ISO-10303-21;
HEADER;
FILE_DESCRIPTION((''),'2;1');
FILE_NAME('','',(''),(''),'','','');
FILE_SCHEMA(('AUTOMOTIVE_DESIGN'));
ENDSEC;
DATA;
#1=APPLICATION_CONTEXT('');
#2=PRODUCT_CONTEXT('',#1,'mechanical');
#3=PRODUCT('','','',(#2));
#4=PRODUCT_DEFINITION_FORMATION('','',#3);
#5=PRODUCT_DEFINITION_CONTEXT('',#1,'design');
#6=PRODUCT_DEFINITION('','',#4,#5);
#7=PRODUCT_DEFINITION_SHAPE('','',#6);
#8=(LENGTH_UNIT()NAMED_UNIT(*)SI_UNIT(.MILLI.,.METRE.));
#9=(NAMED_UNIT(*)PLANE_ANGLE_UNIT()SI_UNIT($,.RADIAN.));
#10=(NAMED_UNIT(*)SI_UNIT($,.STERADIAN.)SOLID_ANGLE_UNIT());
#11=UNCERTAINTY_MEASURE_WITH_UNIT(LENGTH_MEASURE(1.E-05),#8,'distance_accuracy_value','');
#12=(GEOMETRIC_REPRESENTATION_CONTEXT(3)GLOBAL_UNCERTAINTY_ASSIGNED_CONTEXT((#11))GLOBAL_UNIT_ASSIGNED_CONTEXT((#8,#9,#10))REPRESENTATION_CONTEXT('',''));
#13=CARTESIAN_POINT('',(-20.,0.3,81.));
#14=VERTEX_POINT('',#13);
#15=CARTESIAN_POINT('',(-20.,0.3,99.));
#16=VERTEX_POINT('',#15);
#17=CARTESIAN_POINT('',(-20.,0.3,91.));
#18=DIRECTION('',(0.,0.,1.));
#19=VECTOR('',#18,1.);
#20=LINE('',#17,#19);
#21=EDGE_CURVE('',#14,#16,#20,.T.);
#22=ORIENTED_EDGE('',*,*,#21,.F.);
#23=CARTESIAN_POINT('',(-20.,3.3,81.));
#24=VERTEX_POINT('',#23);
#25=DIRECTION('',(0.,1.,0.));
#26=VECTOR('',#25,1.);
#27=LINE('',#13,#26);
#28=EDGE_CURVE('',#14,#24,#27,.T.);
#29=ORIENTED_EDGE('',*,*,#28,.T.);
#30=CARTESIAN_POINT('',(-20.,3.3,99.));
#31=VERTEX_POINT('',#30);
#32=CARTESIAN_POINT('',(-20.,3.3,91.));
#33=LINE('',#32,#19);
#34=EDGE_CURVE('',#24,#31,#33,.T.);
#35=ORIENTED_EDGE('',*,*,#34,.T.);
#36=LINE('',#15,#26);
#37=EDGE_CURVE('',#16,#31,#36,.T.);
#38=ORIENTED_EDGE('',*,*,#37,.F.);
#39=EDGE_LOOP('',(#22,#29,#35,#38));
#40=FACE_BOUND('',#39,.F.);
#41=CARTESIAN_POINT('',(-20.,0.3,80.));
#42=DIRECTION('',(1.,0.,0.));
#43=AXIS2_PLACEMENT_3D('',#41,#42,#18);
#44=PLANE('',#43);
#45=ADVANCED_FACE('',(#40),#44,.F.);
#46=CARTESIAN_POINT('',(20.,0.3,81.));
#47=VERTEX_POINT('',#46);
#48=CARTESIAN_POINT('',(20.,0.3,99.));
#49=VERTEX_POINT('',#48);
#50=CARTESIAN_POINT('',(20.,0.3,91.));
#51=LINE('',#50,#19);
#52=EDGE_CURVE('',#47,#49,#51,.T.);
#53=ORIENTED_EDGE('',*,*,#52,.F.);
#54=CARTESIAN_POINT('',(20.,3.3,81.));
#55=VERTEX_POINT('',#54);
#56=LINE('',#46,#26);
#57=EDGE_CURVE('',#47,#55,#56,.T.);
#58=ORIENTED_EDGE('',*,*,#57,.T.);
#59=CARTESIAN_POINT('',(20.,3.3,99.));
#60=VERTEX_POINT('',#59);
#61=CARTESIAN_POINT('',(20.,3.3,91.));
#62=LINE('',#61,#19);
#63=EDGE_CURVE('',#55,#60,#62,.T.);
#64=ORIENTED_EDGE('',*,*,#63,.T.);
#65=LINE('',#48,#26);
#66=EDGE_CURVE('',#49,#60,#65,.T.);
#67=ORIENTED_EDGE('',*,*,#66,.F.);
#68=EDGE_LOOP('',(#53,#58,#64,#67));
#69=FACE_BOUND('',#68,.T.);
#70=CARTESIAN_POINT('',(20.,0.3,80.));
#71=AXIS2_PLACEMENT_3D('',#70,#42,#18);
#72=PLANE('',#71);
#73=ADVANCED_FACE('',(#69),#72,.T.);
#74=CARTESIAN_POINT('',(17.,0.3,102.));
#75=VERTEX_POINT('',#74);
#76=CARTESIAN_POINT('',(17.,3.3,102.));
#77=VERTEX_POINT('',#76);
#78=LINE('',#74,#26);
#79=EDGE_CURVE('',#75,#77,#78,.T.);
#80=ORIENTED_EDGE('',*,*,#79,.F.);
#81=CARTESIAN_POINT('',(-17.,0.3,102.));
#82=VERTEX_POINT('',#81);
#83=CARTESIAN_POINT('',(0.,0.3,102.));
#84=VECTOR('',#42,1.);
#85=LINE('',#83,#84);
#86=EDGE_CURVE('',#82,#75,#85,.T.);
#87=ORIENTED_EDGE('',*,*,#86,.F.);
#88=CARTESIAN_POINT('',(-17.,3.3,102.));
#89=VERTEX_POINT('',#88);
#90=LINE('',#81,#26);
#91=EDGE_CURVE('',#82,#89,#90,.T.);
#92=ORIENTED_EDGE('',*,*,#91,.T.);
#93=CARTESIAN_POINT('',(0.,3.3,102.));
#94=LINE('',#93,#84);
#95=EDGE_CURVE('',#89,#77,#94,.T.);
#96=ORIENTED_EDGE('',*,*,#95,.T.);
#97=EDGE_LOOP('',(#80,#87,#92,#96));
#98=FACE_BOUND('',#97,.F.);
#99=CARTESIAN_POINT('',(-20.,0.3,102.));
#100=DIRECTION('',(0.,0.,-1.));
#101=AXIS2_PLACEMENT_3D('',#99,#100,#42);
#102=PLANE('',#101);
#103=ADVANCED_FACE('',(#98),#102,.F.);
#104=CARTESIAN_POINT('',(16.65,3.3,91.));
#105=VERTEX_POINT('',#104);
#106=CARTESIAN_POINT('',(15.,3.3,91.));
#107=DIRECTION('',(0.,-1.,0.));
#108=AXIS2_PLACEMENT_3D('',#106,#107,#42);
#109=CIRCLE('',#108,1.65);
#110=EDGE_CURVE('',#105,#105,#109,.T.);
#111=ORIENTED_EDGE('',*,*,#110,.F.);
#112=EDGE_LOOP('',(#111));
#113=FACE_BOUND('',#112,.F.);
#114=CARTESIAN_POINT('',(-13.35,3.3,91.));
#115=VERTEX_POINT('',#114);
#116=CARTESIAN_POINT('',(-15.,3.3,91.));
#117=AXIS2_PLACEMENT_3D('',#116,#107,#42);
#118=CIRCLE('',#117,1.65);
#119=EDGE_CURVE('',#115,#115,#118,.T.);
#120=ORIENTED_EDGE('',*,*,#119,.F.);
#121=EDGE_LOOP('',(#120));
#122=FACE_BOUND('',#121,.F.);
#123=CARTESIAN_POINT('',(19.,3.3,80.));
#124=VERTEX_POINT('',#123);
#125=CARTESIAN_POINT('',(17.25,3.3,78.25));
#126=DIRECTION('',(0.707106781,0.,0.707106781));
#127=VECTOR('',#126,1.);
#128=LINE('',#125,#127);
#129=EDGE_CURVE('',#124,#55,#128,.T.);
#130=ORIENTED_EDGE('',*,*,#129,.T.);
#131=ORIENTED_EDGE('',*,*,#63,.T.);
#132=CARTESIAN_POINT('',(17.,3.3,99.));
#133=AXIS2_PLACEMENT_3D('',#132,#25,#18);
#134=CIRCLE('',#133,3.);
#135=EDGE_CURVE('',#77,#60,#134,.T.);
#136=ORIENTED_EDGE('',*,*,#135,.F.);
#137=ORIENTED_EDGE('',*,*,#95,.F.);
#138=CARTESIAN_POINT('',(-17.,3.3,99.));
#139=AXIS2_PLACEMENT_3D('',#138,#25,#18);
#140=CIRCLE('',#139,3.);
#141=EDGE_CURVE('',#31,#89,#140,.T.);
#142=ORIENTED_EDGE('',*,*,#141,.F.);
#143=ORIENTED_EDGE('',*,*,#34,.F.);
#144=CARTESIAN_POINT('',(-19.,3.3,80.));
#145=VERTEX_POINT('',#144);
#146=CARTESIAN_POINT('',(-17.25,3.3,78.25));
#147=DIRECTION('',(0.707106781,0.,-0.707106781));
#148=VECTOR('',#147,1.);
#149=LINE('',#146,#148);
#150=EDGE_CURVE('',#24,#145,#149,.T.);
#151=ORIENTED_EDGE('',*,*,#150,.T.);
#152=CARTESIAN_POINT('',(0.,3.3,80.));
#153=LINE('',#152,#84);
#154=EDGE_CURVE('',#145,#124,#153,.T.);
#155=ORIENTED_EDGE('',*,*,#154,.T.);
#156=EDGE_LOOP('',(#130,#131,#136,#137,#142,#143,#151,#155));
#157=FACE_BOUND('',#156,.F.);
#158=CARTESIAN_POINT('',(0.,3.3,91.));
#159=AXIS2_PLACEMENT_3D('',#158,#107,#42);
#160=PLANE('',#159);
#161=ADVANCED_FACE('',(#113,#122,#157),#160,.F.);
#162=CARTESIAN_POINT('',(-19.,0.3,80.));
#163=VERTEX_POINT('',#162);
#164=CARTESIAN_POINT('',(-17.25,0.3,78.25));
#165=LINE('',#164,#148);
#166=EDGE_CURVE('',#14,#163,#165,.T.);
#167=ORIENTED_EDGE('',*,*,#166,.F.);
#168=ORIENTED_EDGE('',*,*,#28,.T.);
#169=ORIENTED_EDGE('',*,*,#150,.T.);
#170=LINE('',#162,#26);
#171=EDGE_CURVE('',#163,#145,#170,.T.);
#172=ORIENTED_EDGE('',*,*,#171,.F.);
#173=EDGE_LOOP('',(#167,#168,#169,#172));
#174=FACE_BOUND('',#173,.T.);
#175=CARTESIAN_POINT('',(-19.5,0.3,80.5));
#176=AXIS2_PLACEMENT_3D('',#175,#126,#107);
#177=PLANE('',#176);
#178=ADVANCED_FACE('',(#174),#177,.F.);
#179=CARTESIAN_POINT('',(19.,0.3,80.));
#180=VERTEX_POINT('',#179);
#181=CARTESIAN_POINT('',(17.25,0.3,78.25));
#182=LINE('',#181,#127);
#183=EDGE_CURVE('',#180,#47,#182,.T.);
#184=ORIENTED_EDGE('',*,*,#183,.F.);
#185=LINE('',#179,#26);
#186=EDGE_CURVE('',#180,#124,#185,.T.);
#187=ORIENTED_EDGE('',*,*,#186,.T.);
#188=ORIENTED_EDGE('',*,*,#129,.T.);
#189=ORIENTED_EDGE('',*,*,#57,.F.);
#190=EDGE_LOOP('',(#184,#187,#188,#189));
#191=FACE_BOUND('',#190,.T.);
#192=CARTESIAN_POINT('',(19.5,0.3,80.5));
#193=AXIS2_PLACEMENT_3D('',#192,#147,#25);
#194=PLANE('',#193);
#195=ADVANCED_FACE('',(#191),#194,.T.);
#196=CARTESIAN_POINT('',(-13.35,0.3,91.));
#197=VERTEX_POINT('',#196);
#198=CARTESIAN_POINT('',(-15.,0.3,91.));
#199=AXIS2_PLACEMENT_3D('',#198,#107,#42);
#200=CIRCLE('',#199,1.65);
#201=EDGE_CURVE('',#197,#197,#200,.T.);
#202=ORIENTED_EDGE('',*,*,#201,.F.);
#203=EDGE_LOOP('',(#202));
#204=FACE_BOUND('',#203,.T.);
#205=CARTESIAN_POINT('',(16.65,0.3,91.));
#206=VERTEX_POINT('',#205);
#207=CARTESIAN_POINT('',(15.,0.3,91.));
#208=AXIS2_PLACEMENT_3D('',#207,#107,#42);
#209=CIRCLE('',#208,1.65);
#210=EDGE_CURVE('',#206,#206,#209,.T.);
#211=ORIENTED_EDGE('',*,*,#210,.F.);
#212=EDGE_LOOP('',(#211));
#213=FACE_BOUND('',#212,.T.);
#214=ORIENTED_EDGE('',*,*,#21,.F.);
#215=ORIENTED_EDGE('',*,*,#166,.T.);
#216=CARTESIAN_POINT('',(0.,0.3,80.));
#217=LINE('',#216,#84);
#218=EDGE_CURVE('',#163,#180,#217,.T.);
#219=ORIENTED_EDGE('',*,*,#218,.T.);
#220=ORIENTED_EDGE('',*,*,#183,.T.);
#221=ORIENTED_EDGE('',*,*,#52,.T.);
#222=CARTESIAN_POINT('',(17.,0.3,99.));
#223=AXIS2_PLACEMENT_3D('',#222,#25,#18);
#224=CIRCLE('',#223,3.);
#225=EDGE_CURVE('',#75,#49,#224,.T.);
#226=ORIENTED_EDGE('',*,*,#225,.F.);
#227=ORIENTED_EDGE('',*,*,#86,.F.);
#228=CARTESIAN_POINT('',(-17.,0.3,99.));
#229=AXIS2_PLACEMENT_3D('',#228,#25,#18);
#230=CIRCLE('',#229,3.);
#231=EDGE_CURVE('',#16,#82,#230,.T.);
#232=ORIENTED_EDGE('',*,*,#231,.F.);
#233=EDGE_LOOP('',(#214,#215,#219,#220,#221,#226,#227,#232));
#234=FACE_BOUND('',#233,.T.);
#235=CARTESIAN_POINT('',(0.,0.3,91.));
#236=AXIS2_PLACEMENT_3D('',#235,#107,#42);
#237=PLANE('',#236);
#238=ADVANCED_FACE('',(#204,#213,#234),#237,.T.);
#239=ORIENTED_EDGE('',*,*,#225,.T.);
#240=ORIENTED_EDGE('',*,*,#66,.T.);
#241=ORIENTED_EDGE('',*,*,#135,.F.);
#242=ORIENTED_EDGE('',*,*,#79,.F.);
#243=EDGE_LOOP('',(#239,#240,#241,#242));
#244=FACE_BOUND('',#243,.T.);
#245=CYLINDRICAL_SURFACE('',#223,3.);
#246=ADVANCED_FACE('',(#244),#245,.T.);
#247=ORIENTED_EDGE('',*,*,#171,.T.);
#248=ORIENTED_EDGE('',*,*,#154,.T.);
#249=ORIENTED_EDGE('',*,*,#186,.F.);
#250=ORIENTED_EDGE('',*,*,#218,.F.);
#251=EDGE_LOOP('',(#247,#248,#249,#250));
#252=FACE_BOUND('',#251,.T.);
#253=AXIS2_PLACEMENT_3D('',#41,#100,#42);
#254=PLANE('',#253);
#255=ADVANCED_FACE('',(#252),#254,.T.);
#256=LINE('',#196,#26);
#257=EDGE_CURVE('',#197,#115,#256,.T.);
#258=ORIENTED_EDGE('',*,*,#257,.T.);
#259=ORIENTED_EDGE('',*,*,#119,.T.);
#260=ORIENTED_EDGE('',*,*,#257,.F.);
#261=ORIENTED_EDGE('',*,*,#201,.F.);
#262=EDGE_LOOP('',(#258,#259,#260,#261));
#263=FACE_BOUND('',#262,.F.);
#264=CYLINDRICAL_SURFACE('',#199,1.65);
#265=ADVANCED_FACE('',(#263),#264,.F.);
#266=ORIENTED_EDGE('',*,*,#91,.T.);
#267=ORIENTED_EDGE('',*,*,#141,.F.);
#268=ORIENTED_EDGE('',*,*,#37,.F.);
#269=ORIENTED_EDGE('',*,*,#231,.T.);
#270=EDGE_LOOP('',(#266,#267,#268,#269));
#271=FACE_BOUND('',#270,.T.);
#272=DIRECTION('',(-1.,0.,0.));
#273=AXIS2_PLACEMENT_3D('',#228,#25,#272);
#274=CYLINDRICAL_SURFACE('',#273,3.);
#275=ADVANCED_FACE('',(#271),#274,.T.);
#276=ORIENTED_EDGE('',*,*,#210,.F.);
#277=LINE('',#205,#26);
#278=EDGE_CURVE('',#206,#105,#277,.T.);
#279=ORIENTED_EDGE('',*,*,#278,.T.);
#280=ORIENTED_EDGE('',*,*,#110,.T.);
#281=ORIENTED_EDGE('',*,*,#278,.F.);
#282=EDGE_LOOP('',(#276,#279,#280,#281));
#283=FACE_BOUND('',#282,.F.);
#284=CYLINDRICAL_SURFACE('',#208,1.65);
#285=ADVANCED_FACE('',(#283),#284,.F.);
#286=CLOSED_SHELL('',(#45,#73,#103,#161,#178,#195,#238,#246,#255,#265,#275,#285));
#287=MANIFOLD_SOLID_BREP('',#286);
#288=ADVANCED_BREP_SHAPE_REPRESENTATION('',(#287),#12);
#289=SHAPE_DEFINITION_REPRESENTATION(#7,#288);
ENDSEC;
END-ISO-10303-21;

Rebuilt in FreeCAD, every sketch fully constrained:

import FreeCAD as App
import Part
import Sketcher


def edges_at(feature, points):
    """Names of the edges that pass closest to the given points."""
    edges = feature.Shape.Edges
    near = lambda p: min(range(len(edges)), key=lambda i: edges[i].distToShape(Part.Vertex(*p))[0])
    return sorted({f"Edge{near(p) + 1}" for p in points})

doc = App.newDocument("Part")
body = doc.addObject("PartDesign::Body", "Body")

# Sketch on XZ plane
sketch1 = doc.addObject("Sketcher::SketchObject", "Sketch")
body.addObject(sketch1)
sketch1.AttachmentSupport = (doc.XZ_Plane, [""])
sketch1.MapMode = "FlatFace"
sketch1.addGeometry([
    Part.LineSegment(App.Vector(-20, 0, 0), App.Vector(-20, -22, 0)),  # 0
    Part.LineSegment(App.Vector(-20, -22, 0), App.Vector(20, -22, 0)),  # 1
    Part.LineSegment(App.Vector(20, -22, 0), App.Vector(20, 0, 0)),  # 2
    Part.LineSegment(App.Vector(20, 0, 0), App.Vector(-20, 0, 0)),  # 3
    Part.Circle(App.Vector(-15, -11, 0), App.Vector(0, 0, 1), 1.65),  # 4
    Part.Circle(App.Vector(15, -11, 0), App.Vector(0, 0, 1), 1.65),  # 5
], False)
sketch1.addConstraint([
    Sketcher.Constraint("Coincident", 0, 2, 1, 1),
    Sketcher.Constraint("Coincident", 1, 2, 2, 1),
    Sketcher.Constraint("Coincident", 2, 2, 3, 1),
    Sketcher.Constraint("Coincident", 3, 2, 0, 1),
    Sketcher.Constraint("Vertical", 0),
    Sketcher.Constraint("Horizontal", 1),
    Sketcher.Constraint("Vertical", 2),
    Sketcher.Constraint("Horizontal", 3),
    Sketcher.Constraint("Equal", 4, 5),
    Sketcher.Constraint("Symmetric", 2, 2, 3, 2, -1, 1),
    Sketcher.Constraint("Symmetric", 4, 3, 5, 3, -2),
    Sketcher.Constraint("Diameter", 4, 3.3),
    Sketcher.Constraint("DistanceX", 1, 1, 1, 2, 40.0),
    Sketcher.Constraint("DistanceY", 0, 2, 0, 1, 22.0),
    Sketcher.Constraint("DistanceX", 4, 3, -1, 1, 15.0),
    Sketcher.Constraint("DistanceY", 4, 3, -1, 1, 11.0),
])
pad1 = doc.addObject("PartDesign::Pad", "Pad")
body.addObject(pad1)
pad1.Profile = sketch1
pad1.Length = 3
pad1.Reversed = True
doc.recompute()

fillet = doc.addObject("PartDesign::Fillet", "Fillet")
body.addObject(fillet)
fillet.Base = (pad1, edges_at(pad1, [(20, 1.5, 0), (-20, 1.5, 0)]))
fillet.Radius = 3
doc.recompute()

chamfer = doc.addObject("PartDesign::Chamfer", "Chamfer")
body.addObject(chamfer)
chamfer.Base = (fillet, edges_at(fillet, [(20, 1.5, -22), (-20, 1.5, -22)]))
chamfer.Size = 1
body2 = doc.addObject("PartDesign::Body", "Body001")
doc.recompute()

body.Placement = App.Placement(App.Vector(0, 0.3, 102), App.Rotation(App.Vector(0, 0, 1), 0))
boolean = doc.addObject("PartDesign::Boolean", "Boolean")
body2.addObject(boolean)
boolean.Type = "Fuse"
boolean.addObjects([body])

doc.recompute()
